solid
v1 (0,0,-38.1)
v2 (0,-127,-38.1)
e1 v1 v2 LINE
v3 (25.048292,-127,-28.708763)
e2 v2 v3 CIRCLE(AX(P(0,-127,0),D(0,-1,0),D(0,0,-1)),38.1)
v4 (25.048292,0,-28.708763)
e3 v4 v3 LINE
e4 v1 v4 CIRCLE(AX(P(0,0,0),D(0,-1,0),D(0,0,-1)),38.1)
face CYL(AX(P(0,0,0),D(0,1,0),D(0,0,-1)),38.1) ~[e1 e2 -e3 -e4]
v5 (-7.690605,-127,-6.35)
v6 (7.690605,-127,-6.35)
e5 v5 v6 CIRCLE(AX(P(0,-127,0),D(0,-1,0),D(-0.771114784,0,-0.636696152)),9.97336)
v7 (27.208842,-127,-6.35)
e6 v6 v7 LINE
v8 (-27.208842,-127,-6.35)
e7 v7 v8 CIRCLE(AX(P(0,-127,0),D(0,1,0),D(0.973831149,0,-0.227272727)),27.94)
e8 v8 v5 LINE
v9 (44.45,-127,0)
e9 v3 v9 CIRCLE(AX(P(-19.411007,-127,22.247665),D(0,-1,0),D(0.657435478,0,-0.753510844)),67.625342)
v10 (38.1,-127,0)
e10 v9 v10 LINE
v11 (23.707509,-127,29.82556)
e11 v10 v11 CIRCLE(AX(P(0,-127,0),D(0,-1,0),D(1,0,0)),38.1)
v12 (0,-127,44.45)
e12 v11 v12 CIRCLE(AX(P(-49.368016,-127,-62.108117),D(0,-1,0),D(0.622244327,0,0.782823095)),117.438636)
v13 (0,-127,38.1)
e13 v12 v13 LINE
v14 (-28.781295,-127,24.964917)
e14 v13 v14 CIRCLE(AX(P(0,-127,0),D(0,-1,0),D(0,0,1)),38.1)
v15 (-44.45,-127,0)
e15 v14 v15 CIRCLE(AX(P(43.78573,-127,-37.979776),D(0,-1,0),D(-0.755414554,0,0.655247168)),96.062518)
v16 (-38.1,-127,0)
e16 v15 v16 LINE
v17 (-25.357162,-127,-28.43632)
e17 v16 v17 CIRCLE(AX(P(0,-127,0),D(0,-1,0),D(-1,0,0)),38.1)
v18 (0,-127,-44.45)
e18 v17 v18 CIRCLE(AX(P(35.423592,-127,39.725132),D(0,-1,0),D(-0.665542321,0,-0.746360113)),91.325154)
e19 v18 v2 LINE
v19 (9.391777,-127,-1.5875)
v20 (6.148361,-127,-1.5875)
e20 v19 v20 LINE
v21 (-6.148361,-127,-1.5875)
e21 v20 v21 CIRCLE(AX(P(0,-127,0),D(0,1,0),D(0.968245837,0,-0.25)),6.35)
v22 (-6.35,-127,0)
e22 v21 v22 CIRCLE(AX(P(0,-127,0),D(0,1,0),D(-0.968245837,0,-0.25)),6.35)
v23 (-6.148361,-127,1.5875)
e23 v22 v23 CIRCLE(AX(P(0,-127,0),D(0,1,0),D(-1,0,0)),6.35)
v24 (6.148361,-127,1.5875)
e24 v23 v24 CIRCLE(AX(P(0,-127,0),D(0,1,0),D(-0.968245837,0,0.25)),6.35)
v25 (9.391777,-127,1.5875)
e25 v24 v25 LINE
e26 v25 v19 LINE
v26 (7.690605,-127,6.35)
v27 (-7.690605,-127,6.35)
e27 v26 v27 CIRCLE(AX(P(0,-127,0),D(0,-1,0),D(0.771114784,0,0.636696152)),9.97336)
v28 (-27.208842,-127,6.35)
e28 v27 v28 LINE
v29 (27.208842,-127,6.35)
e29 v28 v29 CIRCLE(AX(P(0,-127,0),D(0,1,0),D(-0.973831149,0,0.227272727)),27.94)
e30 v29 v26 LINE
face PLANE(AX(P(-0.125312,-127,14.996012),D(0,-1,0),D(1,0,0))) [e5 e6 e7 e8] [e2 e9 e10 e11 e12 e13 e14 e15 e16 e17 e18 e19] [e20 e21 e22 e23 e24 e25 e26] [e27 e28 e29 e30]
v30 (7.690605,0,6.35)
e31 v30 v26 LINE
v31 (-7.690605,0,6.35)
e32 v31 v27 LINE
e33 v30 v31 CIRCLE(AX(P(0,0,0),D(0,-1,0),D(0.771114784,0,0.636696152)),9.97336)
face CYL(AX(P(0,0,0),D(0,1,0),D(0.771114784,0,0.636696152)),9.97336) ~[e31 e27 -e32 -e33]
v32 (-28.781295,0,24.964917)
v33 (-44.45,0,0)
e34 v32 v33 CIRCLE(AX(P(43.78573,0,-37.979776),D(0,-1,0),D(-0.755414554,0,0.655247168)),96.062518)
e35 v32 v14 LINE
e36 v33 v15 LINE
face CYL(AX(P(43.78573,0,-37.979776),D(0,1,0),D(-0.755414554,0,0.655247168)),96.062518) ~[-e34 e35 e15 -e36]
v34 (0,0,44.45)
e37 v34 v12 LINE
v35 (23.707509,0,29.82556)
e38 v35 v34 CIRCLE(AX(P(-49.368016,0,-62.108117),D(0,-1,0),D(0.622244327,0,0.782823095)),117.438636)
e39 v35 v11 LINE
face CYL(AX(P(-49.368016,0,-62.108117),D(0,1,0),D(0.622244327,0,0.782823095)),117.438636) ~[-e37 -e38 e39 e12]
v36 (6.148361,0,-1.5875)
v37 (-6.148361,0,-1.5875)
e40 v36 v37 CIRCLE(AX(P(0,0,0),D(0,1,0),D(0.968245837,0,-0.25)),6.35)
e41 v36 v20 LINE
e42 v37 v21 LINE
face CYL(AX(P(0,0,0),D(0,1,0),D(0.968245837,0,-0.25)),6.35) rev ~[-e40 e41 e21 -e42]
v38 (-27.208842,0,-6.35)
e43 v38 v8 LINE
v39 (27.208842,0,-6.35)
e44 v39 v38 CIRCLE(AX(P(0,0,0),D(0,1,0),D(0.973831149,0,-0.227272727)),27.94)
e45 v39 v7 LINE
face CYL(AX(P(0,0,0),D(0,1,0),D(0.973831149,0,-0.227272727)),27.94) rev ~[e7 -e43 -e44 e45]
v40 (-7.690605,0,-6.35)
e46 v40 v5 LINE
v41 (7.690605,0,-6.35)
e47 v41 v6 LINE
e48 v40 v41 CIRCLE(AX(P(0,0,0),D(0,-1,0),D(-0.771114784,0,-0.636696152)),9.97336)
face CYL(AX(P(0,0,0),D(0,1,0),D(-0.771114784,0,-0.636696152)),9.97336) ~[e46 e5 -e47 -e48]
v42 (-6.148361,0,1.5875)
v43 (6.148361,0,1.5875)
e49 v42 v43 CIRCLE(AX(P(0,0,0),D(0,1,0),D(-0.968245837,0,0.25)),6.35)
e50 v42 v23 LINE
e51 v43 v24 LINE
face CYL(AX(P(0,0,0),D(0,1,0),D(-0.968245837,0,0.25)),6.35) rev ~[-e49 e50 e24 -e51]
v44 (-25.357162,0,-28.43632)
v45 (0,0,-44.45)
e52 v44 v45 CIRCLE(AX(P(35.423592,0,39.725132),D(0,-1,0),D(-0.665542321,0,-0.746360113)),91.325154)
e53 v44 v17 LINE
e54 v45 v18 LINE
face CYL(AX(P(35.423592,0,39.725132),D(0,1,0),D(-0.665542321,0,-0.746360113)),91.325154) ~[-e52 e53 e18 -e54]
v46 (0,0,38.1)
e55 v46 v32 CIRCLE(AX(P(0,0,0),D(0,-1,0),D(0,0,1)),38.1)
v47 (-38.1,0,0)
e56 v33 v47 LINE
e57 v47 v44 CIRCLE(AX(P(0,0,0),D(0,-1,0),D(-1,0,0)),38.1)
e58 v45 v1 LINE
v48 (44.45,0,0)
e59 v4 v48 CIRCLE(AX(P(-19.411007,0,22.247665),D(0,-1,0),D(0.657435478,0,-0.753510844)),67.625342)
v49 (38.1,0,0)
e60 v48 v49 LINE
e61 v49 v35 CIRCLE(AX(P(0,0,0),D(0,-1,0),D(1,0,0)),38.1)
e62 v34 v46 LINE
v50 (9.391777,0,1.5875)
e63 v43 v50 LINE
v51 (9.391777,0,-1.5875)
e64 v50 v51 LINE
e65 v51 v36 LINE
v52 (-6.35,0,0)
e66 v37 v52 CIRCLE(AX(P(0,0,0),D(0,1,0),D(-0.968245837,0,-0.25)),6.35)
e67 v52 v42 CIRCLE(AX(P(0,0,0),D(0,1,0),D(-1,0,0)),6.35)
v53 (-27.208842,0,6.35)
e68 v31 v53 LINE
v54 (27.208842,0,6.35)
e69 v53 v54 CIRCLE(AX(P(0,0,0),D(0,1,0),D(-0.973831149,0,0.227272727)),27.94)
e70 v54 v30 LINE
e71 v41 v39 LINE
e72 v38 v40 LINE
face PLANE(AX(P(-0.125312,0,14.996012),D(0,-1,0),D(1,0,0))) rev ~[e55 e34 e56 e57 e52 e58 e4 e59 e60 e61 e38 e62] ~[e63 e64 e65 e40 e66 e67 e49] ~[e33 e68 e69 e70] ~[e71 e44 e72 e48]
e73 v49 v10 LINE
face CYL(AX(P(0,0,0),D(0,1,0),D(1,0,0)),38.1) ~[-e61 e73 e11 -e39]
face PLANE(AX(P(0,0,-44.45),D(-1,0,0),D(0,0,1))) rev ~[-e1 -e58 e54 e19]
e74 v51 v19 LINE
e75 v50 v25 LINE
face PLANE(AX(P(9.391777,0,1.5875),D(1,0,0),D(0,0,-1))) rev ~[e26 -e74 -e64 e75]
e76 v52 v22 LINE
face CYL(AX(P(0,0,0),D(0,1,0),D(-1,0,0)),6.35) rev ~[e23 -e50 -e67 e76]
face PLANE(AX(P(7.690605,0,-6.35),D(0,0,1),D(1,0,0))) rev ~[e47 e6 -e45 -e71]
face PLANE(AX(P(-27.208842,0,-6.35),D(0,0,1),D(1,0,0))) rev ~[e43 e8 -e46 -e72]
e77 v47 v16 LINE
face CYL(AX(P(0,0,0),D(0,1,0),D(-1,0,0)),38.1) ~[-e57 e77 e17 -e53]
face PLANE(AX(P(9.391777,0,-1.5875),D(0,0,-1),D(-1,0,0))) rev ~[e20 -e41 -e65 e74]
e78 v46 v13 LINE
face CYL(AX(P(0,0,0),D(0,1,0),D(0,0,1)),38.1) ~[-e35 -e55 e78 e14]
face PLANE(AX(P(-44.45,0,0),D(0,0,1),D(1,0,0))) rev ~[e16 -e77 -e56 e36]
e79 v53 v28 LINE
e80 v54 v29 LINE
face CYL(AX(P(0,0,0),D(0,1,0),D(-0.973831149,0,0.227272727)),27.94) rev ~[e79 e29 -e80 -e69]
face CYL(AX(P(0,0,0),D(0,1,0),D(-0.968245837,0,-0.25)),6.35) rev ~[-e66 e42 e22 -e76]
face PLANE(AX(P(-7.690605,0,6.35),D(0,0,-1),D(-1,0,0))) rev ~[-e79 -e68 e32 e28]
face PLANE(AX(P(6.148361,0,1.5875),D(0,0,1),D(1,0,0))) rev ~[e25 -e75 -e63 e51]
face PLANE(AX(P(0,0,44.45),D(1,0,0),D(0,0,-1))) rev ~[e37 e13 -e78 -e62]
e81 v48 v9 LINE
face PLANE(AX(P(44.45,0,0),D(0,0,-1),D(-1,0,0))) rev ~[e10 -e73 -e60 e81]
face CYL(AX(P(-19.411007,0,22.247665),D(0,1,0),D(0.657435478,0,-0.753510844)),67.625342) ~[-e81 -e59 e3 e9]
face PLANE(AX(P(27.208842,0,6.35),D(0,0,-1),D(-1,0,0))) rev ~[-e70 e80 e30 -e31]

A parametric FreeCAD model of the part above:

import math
import FreeCAD as App
import Part
import Sketcher
from FreeCAD import Vector
Q = App.Units.Quantity

doc = App.newDocument("Part")
params = doc.addObject("Spreadsheet::Sheet", "Params")
for row, (alias, value) in enumerate([
    ("sketch1_radius", "1.5 in"),
    ("sketch1_radius2", "1.1 in"),
    ("sketch1_radius3", "0.25 in"),
    ("sketch1_width", "0.25 in"),
    ("sketch1_height", "0.125 in"),
    ("pad1_length", "5 in"),
], start=1):
    params.set(f"A{row}", alias)
    params.set(f"B{row}", "=" + value)
    params.setAlias(f"B{row}", alias)

body = doc.addObject("PartDesign::Body", "Body")

sketch1 = body.newObject("Sketcher::SketchObject", "Sketch")
sketch1.AttachmentSupport = (doc.getObject("XZ_Plane"), [""])
sketch1.MapMode = "FlatFace"
sketch1.addGeometry(Part.ArcOfCircle(Part.Circle(Vector(0, 0, 0), Vector(0, 0, 1), 38.1), math.radians(0), math.radians(51.519787)), False)
sketch1.addGeometry(Part.ArcOfCircle(Part.Circle(Vector(-49.368016, -62.108117, 0), Vector(0, 0, 1), 117.438636), math.radians(51.519787), math.radians(65.14187)), False)
sketch1.addGeometry(Part.LineSegment(Vector(0, 44.45, 0), Vector(0, 38.1, 0)), False)
sketch1.addGeometry(Part.ArcOfCircle(Part.Circle(Vector(0, 0, 0), Vector(0, 0, 1), 38.1), math.radians(90), math.radians(139.061606)), False)
sketch1.addGeometry(Part.ArcOfCircle(Part.Circle(Vector(43.78573, -37.979776, 0), Vector(0, 0, 1), 96.062518), math.radians(139.061606), math.radians(156.711248)), False)
sketch1.addGeometry(Part.LineSegment(Vector(-44.45, 0, 0), Vector(-38.1, 0, 0)), False)
sketch1.addGeometry(Part.ArcOfCircle(Part.Circle(Vector(0, 0, 0), Vector(0, 0, 1), 38.1), math.radians(180), math.radians(228.276056)), False)
sketch1.addGeometry(Part.ArcOfCircle(Part.Circle(Vector(35.423592, 39.725132, 0), Vector(0, 0, 1), 91.325154), math.radians(-131.723944), math.radians(-112.822918)), False)
sketch1.addGeometry(Part.LineSegment(Vector(0, -44.45, 0), Vector(0, -38.1, 0)), False)
sketch1.addGeometry(Part.ArcOfCircle(Part.Circle(Vector(0, 0, 0), Vector(0, 0, 1), 38.1), math.radians(-90), math.radians(-48.89542)), False)
sketch1.addGeometry(Part.ArcOfCircle(Part.Circle(Vector(-19.411007, 22.247665, 0), Vector(0, 0, 1), 67.625342), math.radians(-48.89542), math.radians(-19.207129)), False)
sketch1.addGeometry(Part.LineSegment(Vector(44.45, 0, 0), Vector(38.1, 0, 0)), False)
sketch1.addGeometry(Part.LineSegment(Vector(-7.690605, 6.35, 0), Vector(-27.208842, 6.35, 0)), False)
sketch1.addGeometry(Part.ArcOfCircle(Part.Circle(Vector(0, 0, 0), Vector(0, 0, 1), 27.94), math.radians(13.136559), math.radians(166.863441)), False)
sketch1.addGeometry(Part.LineSegment(Vector(27.208842, 6.35, 0), Vector(7.690605, 6.35, 0)), False)
sketch1.addGeometry(Part.ArcOfCircle(Part.Circle(Vector(0, 0, 0), Vector(0, 0, 1), 9.97336), math.radians(39.545899), math.radians(140.454101)), False)
sketch1.addGeometry(Part.LineSegment(Vector(9.391777, -1.5875, 0), Vector(6.148361, -1.5875, 0)), False)
sketch1.addGeometry(Part.ArcOfCircle(Part.Circle(Vector(0, 0, 0), Vector(0, 0, 1), 6.35), math.radians(-165.522488), math.radians(-14.477512)), False)
sketch1.addGeometry(Part.ArcOfCircle(Part.Circle(Vector(0, 0, 0), Vector(0, 0, 1), 6.35), math.radians(180), math.radians(194.477512)), False)
sketch1.addGeometry(Part.ArcOfCircle(Part.Circle(Vector(0, 0, 0), Vector(0, 0, 1), 6.35), math.radians(165.522488), math.radians(180)), False)
sketch1.addGeometry(Part.ArcOfCircle(Part.Circle(Vector(0, 0, 0), Vector(0, 0, 1), 6.35), math.radians(14.477512), math.radians(165.522488)), False)
sketch1.addGeometry(Part.LineSegment(Vector(6.148361, 1.5875, 0), Vector(9.391777, 1.5875, 0)), False)
sketch1.addGeometry(Part.LineSegment(Vector(9.391777, 1.5875, 0), Vector(9.391777, -1.5875, 0)), False)
sketch1.addGeometry(Part.LineSegment(Vector(7.690605, -6.35, 0), Vector(27.208842, -6.35, 0)), False)
sketch1.addGeometry(Part.ArcOfCircle(Part.Circle(Vector(0, 0, 0), Vector(0, 0, 1), 27.94), math.radians(-166.863441), math.radians(-13.136559)), False)
sketch1.addGeometry(Part.LineSegment(Vector(-27.208842, -6.35, 0), Vector(-7.690605, -6.35, 0)), False)
sketch1.addGeometry(Part.ArcOfCircle(Part.Circle(Vector(0, 0, 0), Vector(0, 0, 1), 9.97336), math.radians(-140.454101), math.radians(-39.545899)), False)
sketch1.addConstraint(Sketcher.Constraint("Tangent", 0, 2, 1, 1))
sketch1.addConstraint(Sketcher.Constraint("Coincident", 1, 2, 2, 1))
sketch1.addConstraint(Sketcher.Constraint("Coincident", 2, 2, 3, 1))
sketch1.addConstraint(Sketcher.Constraint("Tangent", 3, 2, 4, 1))
sketch1.addConstraint(Sketcher.Constraint("Coincident", 4, 2, 5, 1))
sketch1.addConstraint(Sketcher.Constraint("Coincident", 5, 2, 6, 1))
sketch1.addConstraint(Sketcher.Constraint("Tangent", 6, 2, 7, 1))
sketch1.addConstraint(Sketcher.Constraint("Coincident", 7, 2, 8, 1))
sketch1.addConstraint(Sketcher.Constraint("Coincident", 8, 2, 9, 1))
sketch1.addConstraint(Sketcher.Constraint("Tangent", 9, 2, 10, 1))
sketch1.addConstraint(Sketcher.Constraint("Coincident", 10, 2, 11, 1))
sketch1.addConstraint(Sketcher.Constraint("Coincident", 11, 2, 0, 1))
sketch1.addConstraint(Sketcher.Constraint("Coincident", 12, 2, 13, 2))
sketch1.addConstraint(Sketcher.Constraint("Coincident", 13, 1, 14, 1))
sketch1.addConstraint(Sketcher.Constraint("Coincident", 14, 2, 15, 1))
sketch1.addConstraint(Sketcher.Constraint("Coincident", 15, 2, 12, 1))
sketch1.addConstraint(Sketcher.Constraint("Coincident", 16, 2, 17, 2))
sketch1.addConstraint(Sketcher.Constraint("Tangent", 17, 1, 18, 2))
sketch1.addConstraint(Sketcher.Constraint("Tangent", 18, 1, 19, 2))
sketch1.addConstraint(Sketcher.Constraint("Tangent", 19, 1, 20, 2))
sketch1.addConstraint(Sketcher.Constraint("Coincident", 20, 1, 21, 1))
sketch1.addConstraint(Sketcher.Constraint("Coincident", 21, 2, 22, 1))
sketch1.addConstraint(Sketcher.Constraint("Coincident", 22, 2, 16, 1))
sketch1.addConstraint(Sketcher.Constraint("Coincident", 23, 2, 24, 2))
sketch1.addConstraint(Sketcher.Constraint("Coincident", 24, 1, 25, 1))
sketch1.addConstraint(Sketcher.Constraint("Coincident", 25, 2, 26, 1))
sketch1.addConstraint(Sketcher.Constraint("Coincident", 26, 2, 23, 1))
sketch1.addConstraint(Sketcher.Constraint("Vertical", 2))
sketch1.addConstraint(Sketcher.Constraint("Horizontal", 5))
sketch1.addConstraint(Sketcher.Constraint("Vertical", 8))
sketch1.addConstraint(Sketcher.Constraint("Horizontal", 11))
sketch1.addConstraint(Sketcher.Constraint("Horizontal", 12))
sketch1.addConstraint(Sketcher.Constraint("Horizontal", 14))
sketch1.addConstraint(Sketcher.Constraint("Horizontal", 16))
sketch1.addConstraint(Sketcher.Constraint("Horizontal", 21))
sketch1.addConstraint(Sketcher.Constraint("Vertical", 22))
sketch1.addConstraint(Sketcher.Constraint("Horizontal", 23))
sketch1.addConstraint(Sketcher.Constraint("Horizontal", 25))
sketch1.addConstraint(Sketcher.Constraint("Coincident", 0, 3, -1, 1))
sketch1.addConstraint(Sketcher.Constraint("Coincident", 3, 3, -1, 1))
sketch1.addConstraint(Sketcher.Constraint("Coincident", 6, 3, -1, 1))
sketch1.addConstraint(Sketcher.Constraint("Coincident", 9, 3, -1, 1))
sketch1.addConstraint(Sketcher.Constraint("Coincident", 13, 3, -1, 1))
sketch1.addConstraint(Sketcher.Constraint("Coincident", 15, 3, -1, 1))
sketch1.addConstraint(Sketcher.Constraint("Coincident", 17, 3, -1, 1))
sketch1.addConstraint(Sketcher.Constraint("Coincident", 19, 3, -1, 1))
sketch1.addConstraint(Sketcher.Constraint("Coincident", 24, 3, -1, 1))
sketch1.addConstraint(Sketcher.Constraint("Coincident", 26, 3, -1, 1))
sketch1.addConstraint(Sketcher.Constraint("Equal", 0, 3))
sketch1.addConstraint(Sketcher.Constraint("Equal", 3, 6))
sketch1.addConstraint(Sketcher.Constraint("Equal", 6, 9))
sketch1.addConstraint(Sketcher.Constraint("Equal", 19, 20))
sketch1.addConstraint(Sketcher.Constraint("Equal", 13, 24))
sketch1.addConstraint(Sketcher.Constraint("Equal", 15, 26))
sketch1.addConstraint(Sketcher.Constraint("Symmetric", 1, 2, 7, 2, -1, 1))
sketch1.addConstraint(Sketcher.Constraint("Symmetric", 4, 2, 10, 2, -1, 1))
sketch1.addConstraint(Sketcher.Constraint("PointOnObject", 1, 2, -2))
sketch1.addConstraint(Sketcher.Constraint("PointOnObject", 4, 2, -1))
sketch1.addConstraint(Sketcher.Constraint("PointOnObject", 18, 1, -1))
sketch1.addConstraint(Sketcher.Constraint("Horizontal", 12, 2, 13, 1))
sketch1.addConstraint(Sketcher.Constraint("Horizontal", 16, 2, 17, 1))
sketch1.addConstraint(Sketcher.Constraint("Horizontal", 19, 1, 20, 1))
sketch1.addConstraint(Sketcher.Constraint("Horizontal", 23, 2, 24, 1))
sketch1.addConstraint(Sketcher.Constraint("Vertical", 17, 1, 19, 1))
sketch1.addConstraint(Sketcher.Constraint("Vertical", 13, 1, 23, 2))
sketch1.addConstraint(Sketcher.Constraint("Equal", 11, 2))
sketch1.addConstraint(Sketcher.Constraint("Radius", 0, Q("1.5 in")))
sketch1.addConstraint(Sketcher.Constraint("Radius", 13, Q("1.1 in")))
sketch1.addConstraint(Sketcher.Constraint("Radius", 17, Q("0.25 in")))
sketch1.addConstraint(Sketcher.Constraint("DistanceX", 5, 1, 5, 2, Q("0.25 in")))
sketch1.addConstraint(Sketcher.Constraint("DistanceY", 23, 2, 13, 1, Q("0.5 in")))
sketch1.addConstraint(Sketcher.Constraint("DistanceY", 22, 2, 22, 1, Q("0.125 in")))
sketch1.addConstraint(Sketcher.Constraint("Radius", 10, Q("67.625342 mm")))
sketch1.addConstraint(Sketcher.Constraint("Radius", 15, Q("9.97336 mm")))
sketch1.addConstraint(Sketcher.Constraint("Radius", 1, Q("117.438636 mm")))
sketch1.addConstraint(Sketcher.Constraint("Radius", 4, Q("96.062518 mm")))
sketch1.addConstraint(Sketcher.Constraint("Radius", 7, Q("91.325154 mm")))
sketch1.addConstraint(Sketcher.Constraint("DistanceX", 16, 2, 16, 1, Q("3.243416 mm")))
sketch1.setExpression("Constraints[66]", "Params.sketch1_radius")
sketch1.setExpression("Constraints[67]", "Params.sketch1_radius2")
sketch1.setExpression("Constraints[68]", "Params.sketch1_radius3")
sketch1.setExpression("Constraints[69]", "Params.sketch1_width")
sketch1.setExpression("Constraints[71]", "Params.sketch1_height")
pad1 = body.newObject("PartDesign::Pad", "Pad")
pad1.Profile = sketch1
pad1.setExpression("Length", "Params.pad1_length")

doc.recompute()
